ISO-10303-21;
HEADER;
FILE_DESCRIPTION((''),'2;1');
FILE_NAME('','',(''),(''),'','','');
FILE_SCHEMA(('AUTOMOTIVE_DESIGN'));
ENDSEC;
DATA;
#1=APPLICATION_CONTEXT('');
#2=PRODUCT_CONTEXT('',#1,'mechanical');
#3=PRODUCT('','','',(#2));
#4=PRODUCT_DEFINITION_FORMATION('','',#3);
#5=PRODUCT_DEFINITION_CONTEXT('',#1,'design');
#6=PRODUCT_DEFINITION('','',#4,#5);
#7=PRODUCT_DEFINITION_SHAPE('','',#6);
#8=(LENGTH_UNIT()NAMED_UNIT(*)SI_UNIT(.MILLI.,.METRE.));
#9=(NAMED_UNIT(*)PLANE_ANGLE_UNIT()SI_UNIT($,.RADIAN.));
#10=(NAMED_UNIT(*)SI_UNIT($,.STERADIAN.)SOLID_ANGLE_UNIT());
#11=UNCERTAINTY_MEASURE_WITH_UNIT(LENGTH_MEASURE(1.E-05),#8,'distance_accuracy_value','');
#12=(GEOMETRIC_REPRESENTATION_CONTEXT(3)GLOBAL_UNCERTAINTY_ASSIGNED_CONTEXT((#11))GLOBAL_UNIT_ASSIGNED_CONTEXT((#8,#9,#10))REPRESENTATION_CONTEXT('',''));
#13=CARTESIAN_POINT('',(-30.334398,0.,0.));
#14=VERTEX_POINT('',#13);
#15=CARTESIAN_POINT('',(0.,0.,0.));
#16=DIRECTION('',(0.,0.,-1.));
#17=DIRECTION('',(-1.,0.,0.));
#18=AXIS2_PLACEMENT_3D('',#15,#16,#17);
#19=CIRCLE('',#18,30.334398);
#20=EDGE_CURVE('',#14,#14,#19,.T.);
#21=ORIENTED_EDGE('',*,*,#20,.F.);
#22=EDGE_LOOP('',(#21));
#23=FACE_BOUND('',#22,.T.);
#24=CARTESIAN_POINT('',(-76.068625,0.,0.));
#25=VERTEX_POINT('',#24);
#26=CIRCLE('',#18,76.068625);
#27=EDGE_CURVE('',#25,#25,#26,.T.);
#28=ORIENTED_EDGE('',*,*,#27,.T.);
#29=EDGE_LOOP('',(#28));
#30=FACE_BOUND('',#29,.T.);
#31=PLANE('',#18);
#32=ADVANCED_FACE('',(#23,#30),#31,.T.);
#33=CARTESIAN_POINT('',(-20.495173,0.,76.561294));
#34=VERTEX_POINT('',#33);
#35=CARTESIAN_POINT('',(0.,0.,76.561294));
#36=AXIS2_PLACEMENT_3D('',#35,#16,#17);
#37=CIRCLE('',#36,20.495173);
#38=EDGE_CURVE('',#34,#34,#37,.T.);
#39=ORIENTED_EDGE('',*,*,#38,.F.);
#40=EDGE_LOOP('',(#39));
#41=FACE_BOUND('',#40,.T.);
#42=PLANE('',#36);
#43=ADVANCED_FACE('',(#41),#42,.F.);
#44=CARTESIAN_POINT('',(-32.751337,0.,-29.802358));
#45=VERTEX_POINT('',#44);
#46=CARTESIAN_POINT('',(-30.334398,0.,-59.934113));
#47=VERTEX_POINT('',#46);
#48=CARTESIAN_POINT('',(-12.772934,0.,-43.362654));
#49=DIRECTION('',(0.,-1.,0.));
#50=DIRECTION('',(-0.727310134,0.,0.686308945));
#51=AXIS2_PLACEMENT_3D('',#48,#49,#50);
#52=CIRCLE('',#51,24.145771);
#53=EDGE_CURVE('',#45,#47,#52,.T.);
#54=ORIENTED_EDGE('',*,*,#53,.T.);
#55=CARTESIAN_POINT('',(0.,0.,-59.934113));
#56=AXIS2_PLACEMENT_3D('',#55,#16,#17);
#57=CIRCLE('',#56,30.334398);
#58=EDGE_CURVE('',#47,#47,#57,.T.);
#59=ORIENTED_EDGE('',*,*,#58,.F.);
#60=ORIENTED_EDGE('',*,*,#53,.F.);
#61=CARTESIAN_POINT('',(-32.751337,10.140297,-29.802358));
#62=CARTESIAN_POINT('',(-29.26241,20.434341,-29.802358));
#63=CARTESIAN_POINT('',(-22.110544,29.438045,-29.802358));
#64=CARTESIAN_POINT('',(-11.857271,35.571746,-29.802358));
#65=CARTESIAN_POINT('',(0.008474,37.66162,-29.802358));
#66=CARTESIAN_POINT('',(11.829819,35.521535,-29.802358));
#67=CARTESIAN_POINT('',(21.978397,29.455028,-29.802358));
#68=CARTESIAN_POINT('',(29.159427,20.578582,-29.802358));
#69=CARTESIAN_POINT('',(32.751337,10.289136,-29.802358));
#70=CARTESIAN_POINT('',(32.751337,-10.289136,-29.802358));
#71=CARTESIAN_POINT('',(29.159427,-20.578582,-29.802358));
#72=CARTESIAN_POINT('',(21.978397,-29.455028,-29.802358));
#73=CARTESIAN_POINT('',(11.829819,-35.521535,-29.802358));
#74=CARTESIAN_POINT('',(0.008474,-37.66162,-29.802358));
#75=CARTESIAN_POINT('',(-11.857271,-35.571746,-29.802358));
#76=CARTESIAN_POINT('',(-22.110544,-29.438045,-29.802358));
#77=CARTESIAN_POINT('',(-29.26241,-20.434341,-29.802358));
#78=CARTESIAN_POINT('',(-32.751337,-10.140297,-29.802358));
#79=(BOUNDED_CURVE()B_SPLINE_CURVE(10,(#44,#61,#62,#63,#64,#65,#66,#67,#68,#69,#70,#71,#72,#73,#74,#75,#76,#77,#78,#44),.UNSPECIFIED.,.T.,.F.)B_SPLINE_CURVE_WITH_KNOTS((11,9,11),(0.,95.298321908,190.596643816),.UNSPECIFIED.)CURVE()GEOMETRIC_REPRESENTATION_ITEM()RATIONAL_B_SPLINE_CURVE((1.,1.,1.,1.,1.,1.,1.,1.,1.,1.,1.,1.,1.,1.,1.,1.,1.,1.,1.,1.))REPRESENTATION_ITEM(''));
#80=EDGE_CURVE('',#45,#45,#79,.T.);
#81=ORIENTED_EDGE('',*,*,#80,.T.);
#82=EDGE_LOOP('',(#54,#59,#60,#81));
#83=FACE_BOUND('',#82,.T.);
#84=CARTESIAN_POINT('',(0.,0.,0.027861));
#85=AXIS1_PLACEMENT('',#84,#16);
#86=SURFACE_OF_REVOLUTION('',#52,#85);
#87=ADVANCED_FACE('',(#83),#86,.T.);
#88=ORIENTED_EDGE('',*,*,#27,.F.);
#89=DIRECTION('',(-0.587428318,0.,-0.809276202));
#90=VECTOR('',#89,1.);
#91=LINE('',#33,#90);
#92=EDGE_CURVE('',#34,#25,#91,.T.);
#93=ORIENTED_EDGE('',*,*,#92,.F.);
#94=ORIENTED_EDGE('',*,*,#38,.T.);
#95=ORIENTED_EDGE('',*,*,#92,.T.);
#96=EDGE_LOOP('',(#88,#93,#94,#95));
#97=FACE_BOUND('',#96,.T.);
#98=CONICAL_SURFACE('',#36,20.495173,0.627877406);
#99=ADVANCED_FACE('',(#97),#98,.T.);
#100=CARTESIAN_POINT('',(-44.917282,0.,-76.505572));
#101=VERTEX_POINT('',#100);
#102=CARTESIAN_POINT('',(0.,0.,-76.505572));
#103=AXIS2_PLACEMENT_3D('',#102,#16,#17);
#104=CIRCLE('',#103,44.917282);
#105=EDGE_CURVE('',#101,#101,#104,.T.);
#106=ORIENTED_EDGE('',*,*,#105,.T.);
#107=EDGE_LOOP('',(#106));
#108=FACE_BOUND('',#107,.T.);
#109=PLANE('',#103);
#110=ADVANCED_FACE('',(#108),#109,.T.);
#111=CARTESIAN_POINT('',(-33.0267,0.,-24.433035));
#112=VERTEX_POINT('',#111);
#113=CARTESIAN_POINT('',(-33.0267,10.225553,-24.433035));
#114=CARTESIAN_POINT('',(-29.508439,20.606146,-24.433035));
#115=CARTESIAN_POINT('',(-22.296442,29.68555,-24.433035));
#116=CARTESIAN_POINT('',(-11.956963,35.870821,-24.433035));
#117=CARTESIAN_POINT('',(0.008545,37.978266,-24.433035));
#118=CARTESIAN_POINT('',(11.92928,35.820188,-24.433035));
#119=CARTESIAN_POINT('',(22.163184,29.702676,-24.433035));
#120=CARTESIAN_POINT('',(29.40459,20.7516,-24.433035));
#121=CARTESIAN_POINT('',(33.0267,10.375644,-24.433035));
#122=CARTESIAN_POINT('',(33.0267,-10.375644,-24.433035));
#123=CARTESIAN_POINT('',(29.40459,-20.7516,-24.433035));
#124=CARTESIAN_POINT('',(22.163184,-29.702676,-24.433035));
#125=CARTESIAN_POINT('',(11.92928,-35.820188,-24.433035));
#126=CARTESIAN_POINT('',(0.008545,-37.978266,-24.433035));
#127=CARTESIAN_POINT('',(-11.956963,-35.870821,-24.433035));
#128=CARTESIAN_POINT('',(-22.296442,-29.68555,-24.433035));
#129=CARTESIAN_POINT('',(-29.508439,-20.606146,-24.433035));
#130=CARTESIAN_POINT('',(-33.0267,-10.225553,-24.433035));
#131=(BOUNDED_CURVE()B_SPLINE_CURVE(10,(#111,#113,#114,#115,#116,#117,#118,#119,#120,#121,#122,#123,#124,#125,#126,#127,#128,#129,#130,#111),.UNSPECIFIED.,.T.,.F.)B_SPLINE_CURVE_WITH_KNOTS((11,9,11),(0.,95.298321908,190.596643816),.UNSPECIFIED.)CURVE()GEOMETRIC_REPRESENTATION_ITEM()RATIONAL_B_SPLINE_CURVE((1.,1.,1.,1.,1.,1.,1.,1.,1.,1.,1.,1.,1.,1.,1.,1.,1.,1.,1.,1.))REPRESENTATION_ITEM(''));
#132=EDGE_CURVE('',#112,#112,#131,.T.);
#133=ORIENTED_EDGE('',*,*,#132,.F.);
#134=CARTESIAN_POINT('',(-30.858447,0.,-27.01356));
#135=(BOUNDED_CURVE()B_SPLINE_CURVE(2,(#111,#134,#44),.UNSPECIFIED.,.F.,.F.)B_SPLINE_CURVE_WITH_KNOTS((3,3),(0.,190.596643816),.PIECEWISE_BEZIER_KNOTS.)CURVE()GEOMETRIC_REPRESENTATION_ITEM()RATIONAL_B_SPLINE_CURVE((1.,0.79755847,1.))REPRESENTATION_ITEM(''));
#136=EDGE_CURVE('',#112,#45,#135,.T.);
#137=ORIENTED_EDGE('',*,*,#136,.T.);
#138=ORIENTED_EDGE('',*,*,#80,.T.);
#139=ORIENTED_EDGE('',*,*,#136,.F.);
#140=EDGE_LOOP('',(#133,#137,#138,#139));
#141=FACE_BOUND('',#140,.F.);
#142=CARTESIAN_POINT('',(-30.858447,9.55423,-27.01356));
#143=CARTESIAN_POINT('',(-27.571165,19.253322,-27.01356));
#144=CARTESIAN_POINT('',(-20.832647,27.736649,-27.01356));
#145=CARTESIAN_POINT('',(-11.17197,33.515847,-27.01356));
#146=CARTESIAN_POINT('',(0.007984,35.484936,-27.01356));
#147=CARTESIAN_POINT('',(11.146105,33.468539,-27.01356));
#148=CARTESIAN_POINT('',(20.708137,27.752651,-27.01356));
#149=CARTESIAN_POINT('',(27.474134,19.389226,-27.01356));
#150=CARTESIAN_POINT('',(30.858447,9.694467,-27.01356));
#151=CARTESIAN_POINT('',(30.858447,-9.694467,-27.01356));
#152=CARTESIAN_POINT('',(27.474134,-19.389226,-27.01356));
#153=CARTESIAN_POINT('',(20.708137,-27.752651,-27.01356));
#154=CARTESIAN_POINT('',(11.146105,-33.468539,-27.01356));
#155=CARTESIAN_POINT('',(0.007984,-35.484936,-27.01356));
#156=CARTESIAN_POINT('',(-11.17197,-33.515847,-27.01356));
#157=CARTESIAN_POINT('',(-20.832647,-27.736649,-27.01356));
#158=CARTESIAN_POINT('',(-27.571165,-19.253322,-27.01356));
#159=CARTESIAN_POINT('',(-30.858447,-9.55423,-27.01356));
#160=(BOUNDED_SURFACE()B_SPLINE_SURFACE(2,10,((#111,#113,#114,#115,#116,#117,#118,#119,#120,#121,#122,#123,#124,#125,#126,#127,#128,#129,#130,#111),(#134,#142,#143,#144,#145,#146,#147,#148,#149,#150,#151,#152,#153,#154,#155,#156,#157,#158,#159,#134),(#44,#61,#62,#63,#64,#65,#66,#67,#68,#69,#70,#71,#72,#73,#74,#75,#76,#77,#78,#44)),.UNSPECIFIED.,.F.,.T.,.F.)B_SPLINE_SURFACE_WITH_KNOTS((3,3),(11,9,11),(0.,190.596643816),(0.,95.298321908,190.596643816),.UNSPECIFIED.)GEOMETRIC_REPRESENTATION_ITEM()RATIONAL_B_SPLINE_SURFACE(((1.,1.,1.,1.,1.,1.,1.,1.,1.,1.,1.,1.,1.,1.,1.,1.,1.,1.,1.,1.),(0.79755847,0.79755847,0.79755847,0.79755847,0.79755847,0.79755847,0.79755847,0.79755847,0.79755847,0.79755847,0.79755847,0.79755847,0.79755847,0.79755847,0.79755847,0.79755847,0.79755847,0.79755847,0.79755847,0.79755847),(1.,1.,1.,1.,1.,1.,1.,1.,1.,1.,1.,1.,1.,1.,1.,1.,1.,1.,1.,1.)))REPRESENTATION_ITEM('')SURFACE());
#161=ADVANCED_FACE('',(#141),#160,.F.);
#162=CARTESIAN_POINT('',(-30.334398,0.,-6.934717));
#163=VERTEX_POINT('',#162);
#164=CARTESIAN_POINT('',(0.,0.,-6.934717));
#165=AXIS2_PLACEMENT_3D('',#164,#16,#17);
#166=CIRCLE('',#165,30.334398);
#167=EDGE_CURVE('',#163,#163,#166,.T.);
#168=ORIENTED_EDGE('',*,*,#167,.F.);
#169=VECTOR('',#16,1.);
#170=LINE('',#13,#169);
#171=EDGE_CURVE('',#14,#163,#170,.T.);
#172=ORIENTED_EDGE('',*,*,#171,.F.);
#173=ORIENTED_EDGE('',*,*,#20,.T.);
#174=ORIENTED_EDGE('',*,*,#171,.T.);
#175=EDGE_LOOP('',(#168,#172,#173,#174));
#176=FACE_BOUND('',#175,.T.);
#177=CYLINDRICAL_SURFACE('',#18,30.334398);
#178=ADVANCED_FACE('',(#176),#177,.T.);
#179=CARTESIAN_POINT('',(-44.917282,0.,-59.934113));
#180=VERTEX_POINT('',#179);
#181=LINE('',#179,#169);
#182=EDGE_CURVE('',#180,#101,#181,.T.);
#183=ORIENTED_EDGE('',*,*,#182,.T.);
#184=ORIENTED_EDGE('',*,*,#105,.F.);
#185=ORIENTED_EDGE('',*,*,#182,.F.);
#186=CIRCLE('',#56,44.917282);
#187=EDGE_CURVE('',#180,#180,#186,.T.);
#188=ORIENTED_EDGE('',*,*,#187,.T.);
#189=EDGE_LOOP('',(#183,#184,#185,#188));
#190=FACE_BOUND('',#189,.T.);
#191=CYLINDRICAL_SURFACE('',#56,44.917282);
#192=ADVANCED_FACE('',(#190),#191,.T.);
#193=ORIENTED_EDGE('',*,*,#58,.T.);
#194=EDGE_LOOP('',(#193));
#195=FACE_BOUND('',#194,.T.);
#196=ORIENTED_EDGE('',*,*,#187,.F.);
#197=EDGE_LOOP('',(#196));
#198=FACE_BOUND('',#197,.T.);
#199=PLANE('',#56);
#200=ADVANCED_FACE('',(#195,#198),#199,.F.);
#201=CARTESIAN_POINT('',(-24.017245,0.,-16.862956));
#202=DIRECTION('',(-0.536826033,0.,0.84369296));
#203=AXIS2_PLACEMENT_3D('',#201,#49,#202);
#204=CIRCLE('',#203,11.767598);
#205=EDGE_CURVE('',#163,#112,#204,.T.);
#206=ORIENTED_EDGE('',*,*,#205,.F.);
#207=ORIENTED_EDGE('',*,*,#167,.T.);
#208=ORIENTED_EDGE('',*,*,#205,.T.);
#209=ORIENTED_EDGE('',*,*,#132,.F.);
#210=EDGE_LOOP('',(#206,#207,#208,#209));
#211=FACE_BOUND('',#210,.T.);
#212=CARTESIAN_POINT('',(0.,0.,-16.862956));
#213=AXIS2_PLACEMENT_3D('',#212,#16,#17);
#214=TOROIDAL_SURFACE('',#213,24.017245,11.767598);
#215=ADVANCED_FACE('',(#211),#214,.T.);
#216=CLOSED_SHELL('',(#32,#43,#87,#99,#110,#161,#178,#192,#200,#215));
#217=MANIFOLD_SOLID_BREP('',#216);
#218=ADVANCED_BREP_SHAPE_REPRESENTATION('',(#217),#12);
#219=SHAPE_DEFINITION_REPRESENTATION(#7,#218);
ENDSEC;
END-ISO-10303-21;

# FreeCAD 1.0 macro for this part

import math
import FreeCAD as App
import Part
import Sketcher


def edges_at(feature, points):
    """Names of the edges that pass closest to the given points."""
    edges = feature.Shape.Edges
    near = lambda p: min(range(len(edges)), key=lambda i: edges[i].distToShape(Part.Vertex(*p))[0])
    return sorted({f"Edge{near(p) + 1}" for p in points})

doc = App.newDocument("Part")
body = doc.addObject("PartDesign::Body", "Body")

sketch1 = body.newObject("Sketcher::SketchObject", "Sketch")
sketch1.AttachmentSupport = (doc.getObject("XZ_Plane"), [""])
sketch1.MapMode = "FlatFace"
sketch1.addGeometry(Part.LineSegment(App.Vector(0, 77, 0), App.Vector(-20, 77, 0)), False)
sketch1.addGeometry(Part.LineSegment(App.Vector(-20, 77, 0), App.Vector(-76, 0, 0)), False)
sketch1.addGeometry(Part.LineSegment(App.Vector(-76, 0, 0), App.Vector(-30, 0, 0)), False)
sketch1.addGeometry(Part.LineSegment(App.Vector(-30, 0, 0), App.Vector(-30, -7, 0)), False)
sketch1.addGeometry(Part.ArcOfCircle(Part.Circle(App.Vector(-24, -17, 0), App.Vector(0, 0, 1), 12), math.radians(122), math.radians(238)), False)
sketch1.addGeometry(Part.ArcOfCircle(Part.Circle(App.Vector(-13, -43, 0), App.Vector(0, 0, 1), 24), math.radians(137), math.radians(223)), False)
sketch1.addGeometry(Part.LineSegment(App.Vector(-30, -60, 0), App.Vector(-45, -60, 0)), False)
sketch1.addGeometry(Part.LineSegment(App.Vector(-45, -60, 0), App.Vector(-45, -77, 0)), False)
sketch1.addGeometry(Part.LineSegment(App.Vector(-45, -77, 0), App.Vector(0, -77, 0)), False)
sketch1.addGeometry(Part.LineSegment(App.Vector(0, -77, 0), App.Vector(0, 77, 0)), False)
sketch1.addConstraint(Sketcher.Constraint("Coincident", 0, 2, 1, 1))
sketch1.addConstraint(Sketcher.Constraint("Coincident", 1, 2, 2, 1))
sketch1.addConstraint(Sketcher.Constraint("Coincident", 2, 2, 3, 1))
sketch1.addConstraint(Sketcher.Constraint("Coincident", 3, 2, 4, 1))
sketch1.addConstraint(Sketcher.Constraint("Coincident", 4, 2, 5, 1))
sketch1.addConstraint(Sketcher.Constraint("Coincident", 5, 2, 6, 1))
sketch1.addConstraint(Sketcher.Constraint("Coincident", 6, 2, 7, 1))
sketch1.addConstraint(Sketcher.Constraint("Coincident", 7, 2, 8, 1))
sketch1.addConstraint(Sketcher.Constraint("Coincident", 8, 2, 9, 1))
sketch1.addConstraint(Sketcher.Constraint("Coincident", 9, 2, 0, 1))
sketch1.addConstraint(Sketcher.Constraint("Horizontal", 0))
sketch1.addConstraint(Sketcher.Constraint("Horizontal", 2))
sketch1.addConstraint(Sketcher.Constraint("Vertical", 3))
sketch1.addConstraint(Sketcher.Constraint("Horizontal", 6))
sketch1.addConstraint(Sketcher.Constraint("Vertical", 7))
sketch1.addConstraint(Sketcher.Constraint("Horizontal", 8))
sketch1.addConstraint(Sketcher.Constraint("Vertical", 9))
sketch1.addConstraint(Sketcher.Constraint("PointOnObject", 1, 2, -1))
sketch1.addConstraint(Sketcher.Constraint("PointOnObject", 8, 2, -2))
sketch1.addConstraint(Sketcher.Constraint("Vertical", 3, 2, 4, 2))
sketch1.addConstraint(Sketcher.Constraint("Vertical", 4, 2, 5, 2))
sketch1.addConstraint(Sketcher.Constraint("Radius", 5, 24.145771))
sketch1.addConstraint(Sketcher.Constraint("Radius", 4, 11.767598))
sketch1.addConstraint(Sketcher.Constraint("DistanceY", 7, 2, 7, 1, 16.571459))
sketch1.addConstraint(Sketcher.Constraint("DistanceX", 2, 2, -1, 1, 30.334398))
sketch1.addConstraint(Sketcher.Constraint("DistanceX", 0, 2, 0, 1, 20.495173))
sketch1.addConstraint(Sketcher.Constraint("DistanceX", 2, 1, 2, 2, 45.734227))
sketch1.addConstraint(Sketcher.Constraint("DistanceX", 6, 2, 6, 1, 14.582884))
sketch1.addConstraint(Sketcher.Constraint("DistanceY", 3, 2, 3, 1, 6.934717))
sketch1.addConstraint(Sketcher.Constraint("DistanceY", 9, 1, 9, 2, 153.066866))
sketch1.addConstraint(Sketcher.Constraint("DistanceY", 7, 2, -1, 1, 76.505572))
sketch1.addConstraint(Sketcher.Constraint("DistanceX", 4, 3, 5, 3, 11.244311))
revolution = body.newObject("PartDesign::Revolution", "Revolution")
revolution.Profile = sketch1
revolution.ReferenceAxis = (sketch1, ["V_Axis"])
revolution.Angle = 360
doc.recompute()

fillet = body.newObject("PartDesign::Fillet", "Fillet")
fillet.Base = (revolution, edges_at(revolution, [(30.334, 0, -26.791)]))
fillet.Radius = 4.45624

doc.recompute()
